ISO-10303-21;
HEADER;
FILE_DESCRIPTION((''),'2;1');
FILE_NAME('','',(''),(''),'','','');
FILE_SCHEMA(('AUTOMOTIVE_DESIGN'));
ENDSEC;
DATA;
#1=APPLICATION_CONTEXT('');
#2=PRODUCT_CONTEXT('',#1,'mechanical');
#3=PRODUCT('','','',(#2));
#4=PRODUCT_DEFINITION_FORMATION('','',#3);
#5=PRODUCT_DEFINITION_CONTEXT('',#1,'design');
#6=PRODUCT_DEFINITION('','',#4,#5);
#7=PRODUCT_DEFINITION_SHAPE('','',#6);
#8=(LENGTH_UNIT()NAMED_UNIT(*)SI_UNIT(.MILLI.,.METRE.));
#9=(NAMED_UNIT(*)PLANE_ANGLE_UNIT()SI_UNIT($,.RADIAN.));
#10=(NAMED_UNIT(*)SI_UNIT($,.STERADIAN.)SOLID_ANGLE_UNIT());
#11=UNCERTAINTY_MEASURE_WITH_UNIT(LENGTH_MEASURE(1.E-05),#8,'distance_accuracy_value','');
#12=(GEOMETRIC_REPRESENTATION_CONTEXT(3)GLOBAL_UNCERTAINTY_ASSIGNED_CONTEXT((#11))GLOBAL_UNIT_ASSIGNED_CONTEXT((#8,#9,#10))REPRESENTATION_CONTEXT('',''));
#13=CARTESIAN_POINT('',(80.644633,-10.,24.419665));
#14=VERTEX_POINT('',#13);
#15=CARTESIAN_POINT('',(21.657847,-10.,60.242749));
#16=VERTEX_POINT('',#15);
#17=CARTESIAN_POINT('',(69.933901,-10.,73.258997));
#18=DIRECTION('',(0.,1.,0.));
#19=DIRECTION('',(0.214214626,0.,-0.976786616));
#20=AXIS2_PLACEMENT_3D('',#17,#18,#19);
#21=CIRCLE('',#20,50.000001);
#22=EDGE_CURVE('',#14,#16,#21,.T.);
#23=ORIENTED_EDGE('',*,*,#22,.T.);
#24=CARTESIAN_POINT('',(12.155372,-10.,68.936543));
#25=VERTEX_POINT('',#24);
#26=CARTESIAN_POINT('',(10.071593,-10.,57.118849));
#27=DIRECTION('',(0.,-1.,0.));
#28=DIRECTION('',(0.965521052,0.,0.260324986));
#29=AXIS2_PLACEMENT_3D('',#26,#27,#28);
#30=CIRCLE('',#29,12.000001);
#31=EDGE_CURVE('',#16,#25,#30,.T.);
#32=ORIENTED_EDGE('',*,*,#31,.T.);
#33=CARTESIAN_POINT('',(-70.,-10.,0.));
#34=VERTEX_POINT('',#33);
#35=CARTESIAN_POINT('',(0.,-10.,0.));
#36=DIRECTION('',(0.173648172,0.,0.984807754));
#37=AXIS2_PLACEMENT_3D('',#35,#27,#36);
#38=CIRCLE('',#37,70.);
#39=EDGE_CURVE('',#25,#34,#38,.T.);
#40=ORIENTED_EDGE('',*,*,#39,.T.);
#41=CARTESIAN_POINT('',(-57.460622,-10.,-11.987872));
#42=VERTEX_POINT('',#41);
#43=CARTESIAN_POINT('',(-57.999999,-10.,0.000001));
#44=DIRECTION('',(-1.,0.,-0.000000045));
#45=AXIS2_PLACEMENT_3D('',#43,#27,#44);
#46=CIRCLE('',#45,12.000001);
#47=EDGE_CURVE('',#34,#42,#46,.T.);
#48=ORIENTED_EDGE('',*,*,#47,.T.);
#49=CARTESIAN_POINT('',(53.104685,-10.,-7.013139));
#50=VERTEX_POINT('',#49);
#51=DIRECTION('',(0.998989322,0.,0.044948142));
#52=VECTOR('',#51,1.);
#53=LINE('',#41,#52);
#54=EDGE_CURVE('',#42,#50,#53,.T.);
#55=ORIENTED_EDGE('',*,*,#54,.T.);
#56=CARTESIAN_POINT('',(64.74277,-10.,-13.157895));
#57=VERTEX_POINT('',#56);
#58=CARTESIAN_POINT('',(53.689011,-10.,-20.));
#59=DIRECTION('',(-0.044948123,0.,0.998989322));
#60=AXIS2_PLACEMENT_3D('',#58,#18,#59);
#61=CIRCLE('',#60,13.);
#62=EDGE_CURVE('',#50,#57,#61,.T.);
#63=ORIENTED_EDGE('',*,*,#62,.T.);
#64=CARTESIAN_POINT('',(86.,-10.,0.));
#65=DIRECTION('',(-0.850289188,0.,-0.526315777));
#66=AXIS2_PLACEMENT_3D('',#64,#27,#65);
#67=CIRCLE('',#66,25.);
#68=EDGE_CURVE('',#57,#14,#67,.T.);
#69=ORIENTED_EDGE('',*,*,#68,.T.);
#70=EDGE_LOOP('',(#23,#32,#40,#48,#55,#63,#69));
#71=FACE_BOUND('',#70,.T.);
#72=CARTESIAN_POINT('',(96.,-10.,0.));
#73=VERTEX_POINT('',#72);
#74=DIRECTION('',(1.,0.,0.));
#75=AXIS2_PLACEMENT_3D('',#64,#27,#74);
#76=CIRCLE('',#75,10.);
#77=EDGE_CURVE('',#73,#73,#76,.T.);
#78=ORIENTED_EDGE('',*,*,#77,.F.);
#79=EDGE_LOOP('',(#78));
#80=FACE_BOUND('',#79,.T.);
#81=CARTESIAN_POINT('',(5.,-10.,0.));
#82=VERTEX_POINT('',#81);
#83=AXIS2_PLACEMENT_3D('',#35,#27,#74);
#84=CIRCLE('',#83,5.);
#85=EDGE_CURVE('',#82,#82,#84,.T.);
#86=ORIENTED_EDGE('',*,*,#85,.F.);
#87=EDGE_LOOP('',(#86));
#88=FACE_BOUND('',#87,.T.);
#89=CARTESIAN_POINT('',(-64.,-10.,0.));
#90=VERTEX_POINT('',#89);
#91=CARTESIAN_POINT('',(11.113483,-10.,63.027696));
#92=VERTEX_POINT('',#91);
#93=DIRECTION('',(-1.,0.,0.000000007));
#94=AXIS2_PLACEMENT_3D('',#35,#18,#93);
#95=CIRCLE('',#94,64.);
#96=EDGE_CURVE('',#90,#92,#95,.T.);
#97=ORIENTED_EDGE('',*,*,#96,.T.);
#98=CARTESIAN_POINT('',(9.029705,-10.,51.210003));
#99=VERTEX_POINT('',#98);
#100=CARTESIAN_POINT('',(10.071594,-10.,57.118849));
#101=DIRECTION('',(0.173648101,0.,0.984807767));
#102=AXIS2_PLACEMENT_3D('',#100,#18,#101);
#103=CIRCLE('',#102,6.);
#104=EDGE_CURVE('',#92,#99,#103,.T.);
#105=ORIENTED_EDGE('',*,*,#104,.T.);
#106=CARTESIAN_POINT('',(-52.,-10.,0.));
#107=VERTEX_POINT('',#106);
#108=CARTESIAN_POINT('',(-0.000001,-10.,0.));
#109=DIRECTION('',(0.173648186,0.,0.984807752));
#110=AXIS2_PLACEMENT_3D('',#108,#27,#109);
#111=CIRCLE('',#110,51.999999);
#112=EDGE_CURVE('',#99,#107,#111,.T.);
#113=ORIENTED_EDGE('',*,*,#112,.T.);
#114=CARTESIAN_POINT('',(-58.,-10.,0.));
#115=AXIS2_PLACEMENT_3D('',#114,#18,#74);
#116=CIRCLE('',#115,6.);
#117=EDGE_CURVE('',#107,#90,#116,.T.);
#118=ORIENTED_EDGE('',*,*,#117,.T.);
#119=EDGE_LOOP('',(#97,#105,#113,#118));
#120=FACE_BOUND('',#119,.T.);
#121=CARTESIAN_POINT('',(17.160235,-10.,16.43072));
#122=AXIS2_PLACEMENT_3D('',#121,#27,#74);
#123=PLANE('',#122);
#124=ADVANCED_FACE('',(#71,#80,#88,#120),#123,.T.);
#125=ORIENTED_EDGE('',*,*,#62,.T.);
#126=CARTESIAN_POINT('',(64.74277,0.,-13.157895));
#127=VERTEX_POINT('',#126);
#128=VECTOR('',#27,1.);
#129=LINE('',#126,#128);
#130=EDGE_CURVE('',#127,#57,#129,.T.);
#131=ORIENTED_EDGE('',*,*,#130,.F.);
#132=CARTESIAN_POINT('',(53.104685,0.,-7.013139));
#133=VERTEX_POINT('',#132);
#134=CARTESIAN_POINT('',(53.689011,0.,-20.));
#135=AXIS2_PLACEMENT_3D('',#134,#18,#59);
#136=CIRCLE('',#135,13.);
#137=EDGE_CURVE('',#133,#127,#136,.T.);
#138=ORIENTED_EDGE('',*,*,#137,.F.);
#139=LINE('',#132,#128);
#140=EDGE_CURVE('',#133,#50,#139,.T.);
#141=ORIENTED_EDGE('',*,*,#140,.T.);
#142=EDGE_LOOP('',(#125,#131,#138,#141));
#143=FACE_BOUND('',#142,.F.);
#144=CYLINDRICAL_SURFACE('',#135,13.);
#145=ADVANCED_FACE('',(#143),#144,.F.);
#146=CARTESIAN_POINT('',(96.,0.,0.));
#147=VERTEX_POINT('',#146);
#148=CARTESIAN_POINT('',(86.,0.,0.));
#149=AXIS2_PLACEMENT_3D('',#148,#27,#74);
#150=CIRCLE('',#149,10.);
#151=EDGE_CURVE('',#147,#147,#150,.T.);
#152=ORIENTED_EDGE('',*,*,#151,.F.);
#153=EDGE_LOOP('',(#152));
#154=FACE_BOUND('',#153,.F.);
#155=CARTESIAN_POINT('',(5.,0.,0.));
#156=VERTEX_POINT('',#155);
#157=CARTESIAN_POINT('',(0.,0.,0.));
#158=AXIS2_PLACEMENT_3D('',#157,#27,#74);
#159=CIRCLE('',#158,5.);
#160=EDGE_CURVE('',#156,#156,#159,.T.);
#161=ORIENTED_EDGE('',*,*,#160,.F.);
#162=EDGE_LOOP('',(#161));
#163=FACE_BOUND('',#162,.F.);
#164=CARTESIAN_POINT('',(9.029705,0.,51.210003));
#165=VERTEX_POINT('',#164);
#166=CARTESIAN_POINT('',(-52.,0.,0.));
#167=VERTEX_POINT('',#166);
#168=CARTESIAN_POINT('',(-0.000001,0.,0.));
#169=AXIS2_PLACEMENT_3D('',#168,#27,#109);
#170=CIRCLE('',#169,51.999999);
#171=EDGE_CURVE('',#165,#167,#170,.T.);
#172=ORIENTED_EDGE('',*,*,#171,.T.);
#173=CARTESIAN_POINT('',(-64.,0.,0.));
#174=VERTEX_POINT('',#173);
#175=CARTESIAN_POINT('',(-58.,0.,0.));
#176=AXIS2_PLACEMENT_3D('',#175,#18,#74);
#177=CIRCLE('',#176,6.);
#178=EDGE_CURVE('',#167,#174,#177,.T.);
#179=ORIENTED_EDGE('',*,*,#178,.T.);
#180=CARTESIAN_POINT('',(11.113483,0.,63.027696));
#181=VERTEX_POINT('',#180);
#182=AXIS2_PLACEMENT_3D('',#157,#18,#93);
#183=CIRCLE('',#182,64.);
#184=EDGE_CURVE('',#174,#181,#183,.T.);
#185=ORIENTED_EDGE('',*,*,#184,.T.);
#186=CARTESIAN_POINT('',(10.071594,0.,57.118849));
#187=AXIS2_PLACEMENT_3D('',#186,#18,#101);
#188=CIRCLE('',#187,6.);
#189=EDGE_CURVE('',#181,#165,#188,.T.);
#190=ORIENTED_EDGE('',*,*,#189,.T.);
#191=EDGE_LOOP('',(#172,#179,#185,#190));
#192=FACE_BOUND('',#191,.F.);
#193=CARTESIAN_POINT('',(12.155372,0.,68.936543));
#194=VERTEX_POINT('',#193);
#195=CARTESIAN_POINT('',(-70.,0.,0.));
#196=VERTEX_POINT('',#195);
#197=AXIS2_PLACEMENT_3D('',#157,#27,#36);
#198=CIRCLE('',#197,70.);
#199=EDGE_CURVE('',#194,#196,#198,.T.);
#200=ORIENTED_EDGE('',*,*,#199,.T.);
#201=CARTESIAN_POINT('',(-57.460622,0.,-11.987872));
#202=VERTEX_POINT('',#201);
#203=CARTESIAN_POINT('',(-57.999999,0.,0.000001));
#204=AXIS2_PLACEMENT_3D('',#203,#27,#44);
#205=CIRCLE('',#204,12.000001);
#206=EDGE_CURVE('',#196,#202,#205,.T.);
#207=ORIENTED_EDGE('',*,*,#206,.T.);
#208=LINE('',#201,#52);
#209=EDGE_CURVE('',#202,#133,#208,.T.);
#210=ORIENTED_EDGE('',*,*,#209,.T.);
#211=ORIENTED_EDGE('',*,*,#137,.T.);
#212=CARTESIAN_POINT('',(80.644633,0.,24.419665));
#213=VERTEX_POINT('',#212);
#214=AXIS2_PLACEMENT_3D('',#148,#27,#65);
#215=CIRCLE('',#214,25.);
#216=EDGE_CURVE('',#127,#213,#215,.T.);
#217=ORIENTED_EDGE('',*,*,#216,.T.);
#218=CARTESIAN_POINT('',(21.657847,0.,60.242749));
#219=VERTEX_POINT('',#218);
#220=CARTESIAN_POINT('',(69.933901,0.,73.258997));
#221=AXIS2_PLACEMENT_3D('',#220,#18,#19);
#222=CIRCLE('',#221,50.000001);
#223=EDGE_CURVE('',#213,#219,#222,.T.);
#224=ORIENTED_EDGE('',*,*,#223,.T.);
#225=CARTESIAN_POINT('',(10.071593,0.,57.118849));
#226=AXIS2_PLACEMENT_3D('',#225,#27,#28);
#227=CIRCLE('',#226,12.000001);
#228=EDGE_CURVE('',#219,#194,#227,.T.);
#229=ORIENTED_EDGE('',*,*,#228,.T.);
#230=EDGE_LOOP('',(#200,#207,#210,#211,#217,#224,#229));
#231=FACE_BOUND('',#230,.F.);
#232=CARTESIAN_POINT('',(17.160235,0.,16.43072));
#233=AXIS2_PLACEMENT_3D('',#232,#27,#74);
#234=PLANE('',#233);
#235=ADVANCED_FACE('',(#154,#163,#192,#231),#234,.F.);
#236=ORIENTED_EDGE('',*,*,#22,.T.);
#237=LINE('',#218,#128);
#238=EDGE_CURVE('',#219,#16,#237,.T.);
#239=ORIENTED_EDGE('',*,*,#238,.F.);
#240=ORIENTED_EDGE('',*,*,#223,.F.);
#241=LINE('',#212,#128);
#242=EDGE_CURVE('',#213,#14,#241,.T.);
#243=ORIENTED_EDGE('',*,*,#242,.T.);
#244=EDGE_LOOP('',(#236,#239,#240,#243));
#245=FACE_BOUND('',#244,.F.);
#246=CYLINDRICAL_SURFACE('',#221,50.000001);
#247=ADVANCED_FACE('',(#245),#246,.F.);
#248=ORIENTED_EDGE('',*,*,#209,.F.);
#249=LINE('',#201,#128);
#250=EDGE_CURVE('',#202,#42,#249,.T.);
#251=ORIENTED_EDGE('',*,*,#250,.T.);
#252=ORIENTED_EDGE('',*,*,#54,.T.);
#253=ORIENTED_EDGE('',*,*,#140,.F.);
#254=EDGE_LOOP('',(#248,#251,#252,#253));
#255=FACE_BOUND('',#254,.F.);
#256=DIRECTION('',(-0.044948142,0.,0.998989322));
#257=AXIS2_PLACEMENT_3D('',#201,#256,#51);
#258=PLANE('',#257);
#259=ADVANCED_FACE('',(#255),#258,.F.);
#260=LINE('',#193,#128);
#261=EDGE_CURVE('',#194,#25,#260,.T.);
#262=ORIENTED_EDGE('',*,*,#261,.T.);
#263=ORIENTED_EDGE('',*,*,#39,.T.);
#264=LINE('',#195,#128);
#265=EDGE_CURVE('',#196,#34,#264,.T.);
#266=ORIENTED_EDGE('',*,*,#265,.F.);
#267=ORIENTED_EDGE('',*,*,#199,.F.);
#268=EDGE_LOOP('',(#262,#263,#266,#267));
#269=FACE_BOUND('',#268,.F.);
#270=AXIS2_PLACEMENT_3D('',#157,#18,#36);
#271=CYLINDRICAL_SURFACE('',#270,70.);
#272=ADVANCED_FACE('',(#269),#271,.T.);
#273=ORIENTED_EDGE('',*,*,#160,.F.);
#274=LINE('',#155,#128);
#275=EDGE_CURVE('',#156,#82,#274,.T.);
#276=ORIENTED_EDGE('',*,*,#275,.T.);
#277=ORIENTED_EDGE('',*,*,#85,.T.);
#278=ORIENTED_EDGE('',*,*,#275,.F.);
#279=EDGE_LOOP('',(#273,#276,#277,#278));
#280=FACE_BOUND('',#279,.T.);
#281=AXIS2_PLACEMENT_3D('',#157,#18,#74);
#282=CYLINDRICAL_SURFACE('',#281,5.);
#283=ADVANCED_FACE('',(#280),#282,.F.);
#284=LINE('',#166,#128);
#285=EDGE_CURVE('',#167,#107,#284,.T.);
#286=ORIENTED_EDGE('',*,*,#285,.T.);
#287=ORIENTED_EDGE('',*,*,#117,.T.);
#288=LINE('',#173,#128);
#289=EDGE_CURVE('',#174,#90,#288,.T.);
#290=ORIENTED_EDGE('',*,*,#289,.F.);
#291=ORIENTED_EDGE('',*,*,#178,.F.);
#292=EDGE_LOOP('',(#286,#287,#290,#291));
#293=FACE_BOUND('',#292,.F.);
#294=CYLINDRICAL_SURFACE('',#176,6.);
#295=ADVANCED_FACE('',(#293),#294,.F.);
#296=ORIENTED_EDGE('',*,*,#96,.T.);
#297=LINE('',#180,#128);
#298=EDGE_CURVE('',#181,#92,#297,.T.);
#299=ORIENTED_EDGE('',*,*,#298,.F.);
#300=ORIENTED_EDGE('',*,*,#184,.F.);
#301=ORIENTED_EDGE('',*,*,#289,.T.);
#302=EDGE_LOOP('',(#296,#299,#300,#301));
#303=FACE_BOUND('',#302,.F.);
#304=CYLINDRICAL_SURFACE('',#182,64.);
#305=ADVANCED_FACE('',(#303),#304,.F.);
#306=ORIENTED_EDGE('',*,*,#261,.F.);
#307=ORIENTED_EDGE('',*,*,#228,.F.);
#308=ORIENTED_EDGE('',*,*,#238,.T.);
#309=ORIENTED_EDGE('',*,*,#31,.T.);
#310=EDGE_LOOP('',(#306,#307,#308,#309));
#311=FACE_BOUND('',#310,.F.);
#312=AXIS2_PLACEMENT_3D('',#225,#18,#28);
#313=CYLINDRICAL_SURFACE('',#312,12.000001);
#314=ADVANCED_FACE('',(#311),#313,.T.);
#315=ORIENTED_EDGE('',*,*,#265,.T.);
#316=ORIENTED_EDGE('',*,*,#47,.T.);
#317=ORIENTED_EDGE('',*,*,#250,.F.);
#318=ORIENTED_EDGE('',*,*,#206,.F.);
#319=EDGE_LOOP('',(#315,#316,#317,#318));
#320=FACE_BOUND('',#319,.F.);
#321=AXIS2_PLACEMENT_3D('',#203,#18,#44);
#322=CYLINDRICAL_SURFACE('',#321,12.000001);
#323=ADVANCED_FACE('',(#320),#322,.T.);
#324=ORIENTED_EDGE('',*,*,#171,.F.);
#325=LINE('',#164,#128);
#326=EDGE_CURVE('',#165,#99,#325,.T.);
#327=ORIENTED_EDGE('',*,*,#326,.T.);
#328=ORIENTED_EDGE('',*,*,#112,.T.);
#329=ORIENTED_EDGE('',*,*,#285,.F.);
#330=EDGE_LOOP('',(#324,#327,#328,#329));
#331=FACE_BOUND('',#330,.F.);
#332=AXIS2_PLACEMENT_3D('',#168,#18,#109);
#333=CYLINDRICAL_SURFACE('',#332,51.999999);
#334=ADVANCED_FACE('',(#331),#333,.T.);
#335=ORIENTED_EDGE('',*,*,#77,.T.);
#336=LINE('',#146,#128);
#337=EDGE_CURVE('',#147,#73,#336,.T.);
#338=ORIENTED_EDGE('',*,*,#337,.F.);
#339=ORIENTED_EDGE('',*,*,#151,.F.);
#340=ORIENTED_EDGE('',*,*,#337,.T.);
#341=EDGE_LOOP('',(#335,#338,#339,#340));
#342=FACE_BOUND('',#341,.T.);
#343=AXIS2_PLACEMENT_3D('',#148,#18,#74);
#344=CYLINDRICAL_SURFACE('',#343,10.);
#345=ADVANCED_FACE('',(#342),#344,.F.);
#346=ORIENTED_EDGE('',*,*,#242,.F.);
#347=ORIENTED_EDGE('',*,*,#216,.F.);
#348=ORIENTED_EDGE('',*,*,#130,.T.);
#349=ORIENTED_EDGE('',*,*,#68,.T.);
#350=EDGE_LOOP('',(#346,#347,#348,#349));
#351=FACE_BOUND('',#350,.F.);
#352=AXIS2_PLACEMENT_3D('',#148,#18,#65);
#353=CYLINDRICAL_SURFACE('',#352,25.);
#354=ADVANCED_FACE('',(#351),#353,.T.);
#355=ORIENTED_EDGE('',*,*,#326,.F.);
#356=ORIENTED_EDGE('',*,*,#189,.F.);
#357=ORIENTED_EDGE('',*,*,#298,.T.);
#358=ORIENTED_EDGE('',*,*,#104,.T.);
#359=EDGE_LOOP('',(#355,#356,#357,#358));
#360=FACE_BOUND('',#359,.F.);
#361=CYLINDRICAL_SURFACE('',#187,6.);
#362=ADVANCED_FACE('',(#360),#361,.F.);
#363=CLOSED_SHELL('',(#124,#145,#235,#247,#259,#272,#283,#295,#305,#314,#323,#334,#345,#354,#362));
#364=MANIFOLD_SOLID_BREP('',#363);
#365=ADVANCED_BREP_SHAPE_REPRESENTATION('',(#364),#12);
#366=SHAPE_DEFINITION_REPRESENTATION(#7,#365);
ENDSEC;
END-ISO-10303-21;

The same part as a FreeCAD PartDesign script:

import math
import FreeCAD as App
import Part
import Sketcher
from FreeCAD import Vector
Q = App.Units.Quantity

doc = App.newDocument("Part")
body = doc.addObject("PartDesign::Body", "Body")

sketch1 = body.newObject("Sketcher::SketchObject", "Sketch")
sketch1.AttachmentSupport = (doc.getObject("XZ_Plane"), [""])
sketch1.MapMode = "FlatFace"
sketch1.addGeometry([
    Part.ArcOfCircle(Part.Circle(Vector(10, 57, 0), Vector(0, 0, 1), 12), math.radians(15), math.radians(80)),
    Part.ArcOfCircle(Part.Circle(Vector(0, 0, 0), Vector(0, 0, 1), 70), math.radians(80), math.radians(180)),
    Part.ArcOfCircle(Part.Circle(Vector(-58, 0, 0), Vector(0, 0, 1), 12), math.radians(-180), math.radians(-87)),
    Part.LineSegment(Vector(-57, -12, 0), Vector(53, -7, 0)),
    Part.ArcOfCircle(Part.Circle(Vector(54, -20, 0), Vector(0, 0, 1), 13), math.radians(32), math.radians(93)),
    Part.ArcOfCircle(Part.Circle(Vector(86, 0, 0), Vector(0, 0, 1), 25), math.radians(-148), math.radians(102)),
    Part.ArcOfCircle(Part.Circle(Vector(70, 73, 0), Vector(0, 0, 1), 50), math.radians(-165), math.radians(-78)),
    Part.Circle(Vector(0, 0, 0), Vector(0, 0, 1), 5),
    Part.Circle(Vector(86, 0, 0), Vector(0, 0, 1), 10),
    Part.ArcOfCircle(Part.Circle(Vector(-58, 0, 0), Vector(0, 0, 1), 6), math.radians(180), math.radians(360)),
    Part.ArcOfCircle(Part.Circle(Vector(0, 0, 0), Vector(0, 0, 1), 64), math.radians(80), math.radians(180)),
    Part.ArcOfCircle(Part.Circle(Vector(10, 57, 0), Vector(0, 0, 1), 6), math.radians(-100), math.radians(80)),
    Part.ArcOfCircle(Part.Circle(Vector(0, 0, 0), Vector(0, 0, 1), 52), math.radians(80), math.radians(180)),
], False)
sketch1.addConstraint([
    Sketcher.Constraint("Tangent", 0, 2, 1, 1),
    Sketcher.Constraint("Tangent", 1, 2, 2, 1),
    Sketcher.Constraint("Tangent", 2, 2, 3, 1),
    Sketcher.Constraint("Tangent", 3, 2, 4, 2),
    Sketcher.Constraint("Tangent", 4, 1, 5, 1),
    Sketcher.Constraint("Tangent", 5, 2, 6, 2),
    Sketcher.Constraint("Tangent", 6, 1, 0, 1),
    Sketcher.Constraint("Tangent", 9, 1, 10, 2),
    Sketcher.Constraint("Tangent", 10, 1, 11, 2),
    Sketcher.Constraint("Tangent", 11, 1, 12, 1),
    Sketcher.Constraint("Tangent", 12, 2, 9, 2),
    Sketcher.Constraint("Coincident", 1, 3, -1, 1),
    Sketcher.Constraint("Coincident", 7, 3, -1, 1),
    Sketcher.Constraint("Coincident", 10, 3, -1, 1),
    Sketcher.Constraint("Coincident", 12, 3, -1, 1),
    Sketcher.Constraint("Coincident", 8, 3, 5, 3),
    Sketcher.Constraint("Coincident", 9, 3, 2, 3),
    Sketcher.Constraint("Coincident", 11, 3, 0, 3),
    Sketcher.Constraint("PointOnObject", 2, 3, -1),
    Sketcher.Constraint("PointOnObject", 5, 3, -1),
    Sketcher.Constraint("Diameter", 7, Q("10 mm")),
    Sketcher.Constraint("Diameter", 8, Q("20 mm")),
    Sketcher.Constraint("Radius", 0, Q("12.000001 mm")),
    Sketcher.Constraint("Radius", 1, Q("70 mm")),
    Sketcher.Constraint("Radius", 4, Q("13 mm")),
    Sketcher.Constraint("Radius", 5, Q("25 mm")),
    Sketcher.Constraint("Radius", 6, Q("50.000001 mm")),
    Sketcher.Constraint("Radius", 9, Q("6 mm")),
    Sketcher.Constraint("DistanceY", 4, 3, -1, 1, Q("20 mm")),
    Sketcher.Constraint("DistanceX", -1, 1, 5, 3, Q("86 mm")),
    Sketcher.Constraint("DistanceX", -1, 1, 6, 3, Q("69.933901 mm")),
])
pad1 = body.newObject("PartDesign::Pad", "Pad")
pad1.Profile = sketch1
pad1.Length = 10

doc.recompute()
